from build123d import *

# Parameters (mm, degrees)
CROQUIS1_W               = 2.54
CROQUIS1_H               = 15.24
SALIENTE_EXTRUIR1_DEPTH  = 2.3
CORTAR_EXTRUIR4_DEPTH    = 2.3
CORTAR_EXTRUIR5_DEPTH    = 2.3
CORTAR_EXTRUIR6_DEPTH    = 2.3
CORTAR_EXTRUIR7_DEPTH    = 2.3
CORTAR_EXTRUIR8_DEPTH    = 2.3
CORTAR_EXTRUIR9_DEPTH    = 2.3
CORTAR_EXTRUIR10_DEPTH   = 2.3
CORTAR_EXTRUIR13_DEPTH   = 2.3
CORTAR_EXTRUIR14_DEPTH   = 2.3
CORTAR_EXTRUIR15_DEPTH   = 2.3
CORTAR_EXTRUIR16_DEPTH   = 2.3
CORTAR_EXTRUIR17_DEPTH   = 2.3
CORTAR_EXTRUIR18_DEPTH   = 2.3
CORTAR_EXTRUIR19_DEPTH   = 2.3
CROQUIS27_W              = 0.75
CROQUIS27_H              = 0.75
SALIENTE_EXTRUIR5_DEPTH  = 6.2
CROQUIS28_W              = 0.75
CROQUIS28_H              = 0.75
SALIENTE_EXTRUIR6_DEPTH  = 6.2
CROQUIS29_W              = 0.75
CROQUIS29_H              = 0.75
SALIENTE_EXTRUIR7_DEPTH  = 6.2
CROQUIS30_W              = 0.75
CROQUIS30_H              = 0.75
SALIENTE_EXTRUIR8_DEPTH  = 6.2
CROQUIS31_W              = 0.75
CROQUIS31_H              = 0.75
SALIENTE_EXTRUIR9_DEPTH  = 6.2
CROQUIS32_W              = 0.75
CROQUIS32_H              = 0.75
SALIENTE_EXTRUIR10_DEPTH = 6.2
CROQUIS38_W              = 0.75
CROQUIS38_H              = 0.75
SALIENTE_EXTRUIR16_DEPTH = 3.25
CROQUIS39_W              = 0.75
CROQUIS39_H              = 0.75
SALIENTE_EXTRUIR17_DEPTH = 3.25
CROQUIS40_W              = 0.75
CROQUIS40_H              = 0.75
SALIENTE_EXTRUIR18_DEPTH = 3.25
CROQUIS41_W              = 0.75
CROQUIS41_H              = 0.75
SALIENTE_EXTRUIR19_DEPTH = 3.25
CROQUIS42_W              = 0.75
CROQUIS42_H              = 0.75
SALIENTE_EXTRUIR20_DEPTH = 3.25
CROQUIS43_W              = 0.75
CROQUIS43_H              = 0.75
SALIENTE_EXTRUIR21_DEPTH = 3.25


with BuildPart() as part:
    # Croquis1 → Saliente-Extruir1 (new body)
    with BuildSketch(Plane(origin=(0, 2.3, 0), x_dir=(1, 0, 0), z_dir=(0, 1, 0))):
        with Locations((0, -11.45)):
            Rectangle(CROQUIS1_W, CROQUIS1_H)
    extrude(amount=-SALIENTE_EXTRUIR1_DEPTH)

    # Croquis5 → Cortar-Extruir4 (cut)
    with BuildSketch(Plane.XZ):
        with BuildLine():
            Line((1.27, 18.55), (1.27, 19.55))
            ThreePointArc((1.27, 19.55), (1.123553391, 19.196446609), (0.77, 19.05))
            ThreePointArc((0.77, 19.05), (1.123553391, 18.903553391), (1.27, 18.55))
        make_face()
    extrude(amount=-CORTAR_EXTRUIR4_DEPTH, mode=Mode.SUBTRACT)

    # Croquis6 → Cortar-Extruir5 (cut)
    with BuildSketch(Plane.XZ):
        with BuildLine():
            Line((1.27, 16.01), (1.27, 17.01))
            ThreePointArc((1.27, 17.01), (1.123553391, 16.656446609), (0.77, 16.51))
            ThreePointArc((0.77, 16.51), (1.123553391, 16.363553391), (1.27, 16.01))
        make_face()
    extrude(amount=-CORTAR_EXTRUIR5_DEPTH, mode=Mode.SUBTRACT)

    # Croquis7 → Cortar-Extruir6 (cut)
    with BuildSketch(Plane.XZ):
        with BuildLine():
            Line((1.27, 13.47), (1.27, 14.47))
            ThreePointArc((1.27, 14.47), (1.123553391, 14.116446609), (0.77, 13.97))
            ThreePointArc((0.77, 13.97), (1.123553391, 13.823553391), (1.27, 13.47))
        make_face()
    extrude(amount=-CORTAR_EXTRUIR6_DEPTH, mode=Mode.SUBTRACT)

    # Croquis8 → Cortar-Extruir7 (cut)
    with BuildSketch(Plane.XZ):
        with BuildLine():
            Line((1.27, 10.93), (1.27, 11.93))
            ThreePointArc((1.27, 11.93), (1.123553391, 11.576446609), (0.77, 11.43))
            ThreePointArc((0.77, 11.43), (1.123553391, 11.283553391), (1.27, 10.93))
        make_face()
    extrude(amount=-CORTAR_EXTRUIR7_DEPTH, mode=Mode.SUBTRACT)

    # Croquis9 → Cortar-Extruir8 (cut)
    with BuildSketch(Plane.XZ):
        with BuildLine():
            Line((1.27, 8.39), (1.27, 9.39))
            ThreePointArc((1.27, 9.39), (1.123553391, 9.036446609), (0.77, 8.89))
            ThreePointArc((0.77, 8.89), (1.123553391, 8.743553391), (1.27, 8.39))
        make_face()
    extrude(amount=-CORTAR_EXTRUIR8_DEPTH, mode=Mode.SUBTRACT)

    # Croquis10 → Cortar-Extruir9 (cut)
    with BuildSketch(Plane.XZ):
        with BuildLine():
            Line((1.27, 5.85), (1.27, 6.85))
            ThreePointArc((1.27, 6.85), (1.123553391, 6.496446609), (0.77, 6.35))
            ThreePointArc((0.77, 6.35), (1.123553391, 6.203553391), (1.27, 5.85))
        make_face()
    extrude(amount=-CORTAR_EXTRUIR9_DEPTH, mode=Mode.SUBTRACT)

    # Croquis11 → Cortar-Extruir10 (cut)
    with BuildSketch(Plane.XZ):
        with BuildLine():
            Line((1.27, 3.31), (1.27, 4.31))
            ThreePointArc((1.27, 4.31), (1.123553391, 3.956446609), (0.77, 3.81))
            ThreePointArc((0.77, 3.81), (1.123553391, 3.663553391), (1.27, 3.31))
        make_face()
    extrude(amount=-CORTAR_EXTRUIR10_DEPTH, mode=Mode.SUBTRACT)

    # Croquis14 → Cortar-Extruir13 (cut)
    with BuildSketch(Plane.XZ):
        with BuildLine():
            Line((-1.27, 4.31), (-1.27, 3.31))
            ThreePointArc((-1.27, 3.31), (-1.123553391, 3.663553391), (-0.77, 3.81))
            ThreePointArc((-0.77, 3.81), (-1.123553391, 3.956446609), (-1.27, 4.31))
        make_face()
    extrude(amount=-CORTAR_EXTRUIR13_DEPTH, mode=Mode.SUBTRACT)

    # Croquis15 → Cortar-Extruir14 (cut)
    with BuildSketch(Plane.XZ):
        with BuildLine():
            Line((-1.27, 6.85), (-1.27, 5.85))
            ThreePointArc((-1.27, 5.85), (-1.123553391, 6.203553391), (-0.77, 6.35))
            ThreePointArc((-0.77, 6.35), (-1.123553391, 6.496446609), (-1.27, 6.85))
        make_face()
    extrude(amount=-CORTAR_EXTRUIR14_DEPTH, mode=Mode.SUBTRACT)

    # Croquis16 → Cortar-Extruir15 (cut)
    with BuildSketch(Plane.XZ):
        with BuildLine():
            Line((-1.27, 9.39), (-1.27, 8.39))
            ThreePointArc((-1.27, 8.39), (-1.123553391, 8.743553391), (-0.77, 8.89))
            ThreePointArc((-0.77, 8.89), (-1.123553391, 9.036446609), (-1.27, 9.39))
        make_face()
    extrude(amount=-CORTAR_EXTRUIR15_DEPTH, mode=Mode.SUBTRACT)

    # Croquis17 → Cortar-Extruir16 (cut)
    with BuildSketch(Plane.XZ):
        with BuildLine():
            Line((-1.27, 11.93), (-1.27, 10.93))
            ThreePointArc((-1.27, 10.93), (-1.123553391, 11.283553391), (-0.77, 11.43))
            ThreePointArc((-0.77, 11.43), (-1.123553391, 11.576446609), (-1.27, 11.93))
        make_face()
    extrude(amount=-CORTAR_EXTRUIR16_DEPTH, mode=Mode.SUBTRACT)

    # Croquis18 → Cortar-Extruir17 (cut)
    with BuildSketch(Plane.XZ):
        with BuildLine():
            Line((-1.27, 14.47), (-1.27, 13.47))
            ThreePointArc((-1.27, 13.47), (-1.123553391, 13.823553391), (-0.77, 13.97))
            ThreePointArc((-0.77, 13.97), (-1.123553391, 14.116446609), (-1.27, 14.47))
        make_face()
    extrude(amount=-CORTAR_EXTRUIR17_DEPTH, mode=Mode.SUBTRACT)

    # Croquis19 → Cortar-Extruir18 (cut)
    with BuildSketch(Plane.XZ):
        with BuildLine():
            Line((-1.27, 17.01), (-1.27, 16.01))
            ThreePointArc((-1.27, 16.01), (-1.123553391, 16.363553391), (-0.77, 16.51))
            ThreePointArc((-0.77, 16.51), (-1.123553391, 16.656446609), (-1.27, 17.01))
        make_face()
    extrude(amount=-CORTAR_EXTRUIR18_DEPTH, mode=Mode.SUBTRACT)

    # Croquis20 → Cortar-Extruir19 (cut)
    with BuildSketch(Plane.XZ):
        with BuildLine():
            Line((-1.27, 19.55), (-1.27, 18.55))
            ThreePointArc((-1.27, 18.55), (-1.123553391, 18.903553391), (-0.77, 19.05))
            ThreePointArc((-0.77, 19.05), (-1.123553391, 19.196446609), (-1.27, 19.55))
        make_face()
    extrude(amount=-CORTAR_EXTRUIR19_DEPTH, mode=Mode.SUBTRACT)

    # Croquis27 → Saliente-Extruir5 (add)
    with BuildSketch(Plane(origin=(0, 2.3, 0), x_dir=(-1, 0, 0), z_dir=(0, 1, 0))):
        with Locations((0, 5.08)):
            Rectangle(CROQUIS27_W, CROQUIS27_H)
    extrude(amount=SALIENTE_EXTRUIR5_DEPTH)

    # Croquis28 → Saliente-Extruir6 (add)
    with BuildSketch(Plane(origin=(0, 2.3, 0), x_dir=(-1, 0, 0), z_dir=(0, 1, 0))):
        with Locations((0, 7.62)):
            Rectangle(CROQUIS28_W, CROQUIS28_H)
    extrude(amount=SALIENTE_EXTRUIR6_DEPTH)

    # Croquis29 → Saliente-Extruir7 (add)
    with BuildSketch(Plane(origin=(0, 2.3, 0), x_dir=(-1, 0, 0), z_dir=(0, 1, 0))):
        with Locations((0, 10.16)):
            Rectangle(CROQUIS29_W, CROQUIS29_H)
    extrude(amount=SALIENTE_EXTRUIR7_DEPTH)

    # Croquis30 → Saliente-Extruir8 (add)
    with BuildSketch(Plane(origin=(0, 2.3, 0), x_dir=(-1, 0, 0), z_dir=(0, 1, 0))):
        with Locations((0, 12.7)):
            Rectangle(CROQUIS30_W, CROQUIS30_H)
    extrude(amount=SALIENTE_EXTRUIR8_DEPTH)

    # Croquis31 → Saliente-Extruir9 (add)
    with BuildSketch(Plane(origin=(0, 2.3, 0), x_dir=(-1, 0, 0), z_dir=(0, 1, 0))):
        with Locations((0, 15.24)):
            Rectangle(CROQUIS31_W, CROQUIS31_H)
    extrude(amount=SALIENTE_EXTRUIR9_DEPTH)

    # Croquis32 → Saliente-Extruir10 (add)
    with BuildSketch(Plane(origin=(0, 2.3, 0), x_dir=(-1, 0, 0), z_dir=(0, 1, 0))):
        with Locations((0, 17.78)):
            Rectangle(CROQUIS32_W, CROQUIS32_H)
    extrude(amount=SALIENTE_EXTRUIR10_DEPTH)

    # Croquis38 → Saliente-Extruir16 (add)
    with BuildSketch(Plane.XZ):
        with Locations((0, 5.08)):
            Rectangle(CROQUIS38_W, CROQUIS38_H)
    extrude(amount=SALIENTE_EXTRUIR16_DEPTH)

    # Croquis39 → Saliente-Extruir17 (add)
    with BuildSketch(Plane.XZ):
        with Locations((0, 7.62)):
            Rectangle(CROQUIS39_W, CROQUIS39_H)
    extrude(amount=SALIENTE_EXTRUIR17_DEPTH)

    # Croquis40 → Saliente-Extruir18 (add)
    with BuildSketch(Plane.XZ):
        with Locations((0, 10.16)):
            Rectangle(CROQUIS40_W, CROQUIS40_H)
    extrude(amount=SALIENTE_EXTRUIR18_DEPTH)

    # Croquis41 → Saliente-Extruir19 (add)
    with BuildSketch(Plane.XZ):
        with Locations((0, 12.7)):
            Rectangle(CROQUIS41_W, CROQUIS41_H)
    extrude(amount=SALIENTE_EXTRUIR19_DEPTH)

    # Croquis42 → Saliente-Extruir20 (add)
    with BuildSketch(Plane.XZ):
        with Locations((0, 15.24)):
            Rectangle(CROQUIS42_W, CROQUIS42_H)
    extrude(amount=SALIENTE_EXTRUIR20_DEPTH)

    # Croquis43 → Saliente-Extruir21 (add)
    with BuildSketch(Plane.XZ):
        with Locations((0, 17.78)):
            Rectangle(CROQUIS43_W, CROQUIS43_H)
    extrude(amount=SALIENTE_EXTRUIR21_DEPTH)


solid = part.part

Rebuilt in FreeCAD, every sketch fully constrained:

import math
import FreeCAD as App
import Part
import Sketcher


def add_polygon(sketch, points):
    """Adds a closed chain of lines whose ends are joined by coincident constraints."""
    first, n = sketch.GeometryCount, len(points)
    for a, b in zip(points, points[1:] + points[:1]):
        sketch.addGeometry(Part.LineSegment(App.Vector(*a, 0), App.Vector(*b, 0)), False)
    for i in range(n):
        sketch.addConstraint(Sketcher.Constraint("Coincident", first + i, 2, first + (i + 1) % n, 1))

doc = App.newDocument("Part")
body = doc.addObject("PartDesign::Body", "Body")

sketch1 = body.newObject("Sketcher::SketchObject", "Sketch")
sketch1.AttachmentSupport = (doc.getObject("XZ_Plane"), [""])
sketch1.MapMode = "FlatFace"
sketch1.AttachmentOffset = App.Placement(App.Vector(0, 0, -2.3), App.Rotation())
add_polygon(sketch1, [(-1.27, 3.83), (-1.27, 19.07), (1.27, 19.07), (1.27, 3.83)])
sketch1.addConstraint(Sketcher.Constraint("Vertical", 0))
sketch1.addConstraint(Sketcher.Constraint("Horizontal", 1))
sketch1.addConstraint(Sketcher.Constraint("Vertical", 2))
sketch1.addConstraint(Sketcher.Constraint("Horizontal", 3))
sketch1.addConstraint(Sketcher.Constraint("DistanceX", 1, 1, 1, 2, 2.54))
sketch1.addConstraint(Sketcher.Constraint("DistanceY", 0, 1, 0, 2, 15.24))
sketch1.addConstraint(Sketcher.Constraint("DistanceX", 0, 2, -1, 1, 1.27))
sketch1.addConstraint(Sketcher.Constraint("DistanceY", -1, 1, 0, 2, 19.07))
pad1 = body.newObject("PartDesign::Pad", "Pad")
pad1.Profile = sketch1
pad1.Length = 2.3

sketch2 = body.newObject("Sketcher::SketchObject", "Sketch001")
sketch2.AttachmentSupport = (doc.getObject("XZ_Plane"), [""])
sketch2.MapMode = "FlatFace"
sketch2.addGeometry(Part.LineSegment(App.Vector(1.27, 18.55, 0), App.Vector(1.27, 19.55, 0)), False)
sketch2.addGeometry(Part.ArcOfCircle(Part.Circle(App.Vector(0.77, 19.55, 0), App.Vector(0, 0, 1), 0.5), math.radians(-90), math.radians(0)), False)
sketch2.addGeometry(Part.ArcOfCircle(Part.Circle(App.Vector(0.77, 18.55, 0), App.Vector(0, 0, 1), 0.5), math.radians(0), math.radians(90)), False)
sketch2.addConstraint(Sketcher.Constraint("Tangent", 0, 2, 1, 2))
sketch2.addConstraint(Sketcher.Constraint("Tangent", 1, 1, 2, 2))
sketch2.addConstraint(Sketcher.Constraint("Tangent", 2, 1, 0, 1))
sketch2.addConstraint(Sketcher.Constraint("Vertical", 0))
sketch2.addConstraint(Sketcher.Constraint("Equal", 1, 2))
sketch2.addConstraint(Sketcher.Constraint("Radius", 1, 0.5))
sketch2.addConstraint(Sketcher.Constraint("DistanceX", -1, 1, 1, 3, 0.77))
sketch2.addConstraint(Sketcher.Constraint("DistanceY", -1, 1, 1, 3, 19.55))
pocket1 = body.newObject("PartDesign::Pocket", "Pocket")
pocket1.Profile = sketch2
pocket1.Length = 2.3

sketch3 = body.newObject("Sketcher::SketchObject", "Sketch002")
sketch3.AttachmentSupport = (doc.getObject("XZ_Plane"), [""])
sketch3.MapMode = "FlatFace"
sketch3.addGeometry(Part.LineSegment(App.Vector(1.27, 16.01, 0), App.Vector(1.27, 17.01, 0)), False)
sketch3.addGeometry(Part.ArcOfCircle(Part.Circle(App.Vector(0.77, 17.01, 0), App.Vector(0, 0, 1), 0.5), math.radians(-90), math.radians(0)), False)
sketch3.addGeometry(Part.ArcOfCircle(Part.Circle(App.Vector(0.77, 16.01, 0), App.Vector(0, 0, 1), 0.5), math.radians(0), math.radians(90)), False)
sketch3.addConstraint(Sketcher.Constraint("Tangent", 0, 2, 1, 2))
sketch3.addConstraint(Sketcher.Constraint("Tangent", 1, 1, 2, 2))
sketch3.addConstraint(Sketcher.Constraint("Tangent", 2, 1, 0, 1))
sketch3.addConstraint(Sketcher.Constraint("Vertical", 0))
sketch3.addConstraint(Sketcher.Constraint("Equal", 1, 2))
sketch3.addConstraint(Sketcher.Constraint("Radius", 1, 0.5))
sketch3.addConstraint(Sketcher.Constraint("DistanceX", -1, 1, 1, 3, 0.77))
sketch3.addConstraint(Sketcher.Constraint("DistanceY", -1, 1, 1, 3, 17.01))
pocket2 = body.newObject("PartDesign::Pocket", "Pocket001")
pocket2.Profile = sketch3
pocket2.Length = 2.3

sketch4 = body.newObject("Sketcher::SketchObject", "Sketch003")
sketch4.AttachmentSupport = (doc.getObject("XZ_Plane"), [""])
sketch4.MapMode = "FlatFace"
sketch4.addGeometry(Part.LineSegment(App.Vector(1.27, 13.47, 0), App.Vector(1.27, 14.47, 0)), False)
sketch4.addGeometry(Part.ArcOfCircle(Part.Circle(App.Vector(0.77, 14.47, 0), App.Vector(0, 0, 1), 0.5), math.radians(-90), math.radians(0)), False)
sketch4.addGeometry(Part.ArcOfCircle(Part.Circle(App.Vector(0.77, 13.47, 0), App.Vector(0, 0, 1), 0.5), math.radians(0), math.radians(90)), False)
sketch4.addConstraint(Sketcher.Constraint("Tangent", 0, 2, 1, 2))
sketch4.addConstraint(Sketcher.Constraint("Tangent", 1, 1, 2, 2))
sketch4.addConstraint(Sketcher.Constraint("Tangent", 2, 1, 0, 1))
sketch4.addConstraint(Sketcher.Constraint("Vertical", 0))
sketch4.addConstraint(Sketcher.Constraint("Equal", 1, 2))
sketch4.addConstraint(Sketcher.Constraint("Radius", 1, 0.5))
sketch4.addConstraint(Sketcher.Constraint("DistanceX", -1, 1, 1, 3, 0.77))
sketch4.addConstraint(Sketcher.Constraint("DistanceY", -1, 1, 1, 3, 14.47))
pocket3 = body.newObject("PartDesign::Pocket", "Pocket002")
pocket3.Profile = sketch4
pocket3.Length = 2.3

sketch5 = body.newObject("Sketcher::SketchObject", "Sketch004")
sketch5.AttachmentSupport = (doc.getObject("XZ_Plane"), [""])
sketch5.MapMode = "FlatFace"
sketch5.addGeometry(Part.LineSegment(App.Vector(1.27, 10.93, 0), App.Vector(1.27, 11.93, 0)), False)
sketch5.addGeometry(Part.ArcOfCircle(Part.Circle(App.Vector(0.77, 11.93, 0), App.Vector(0, 0, 1), 0.5), math.radians(-90), math.radians(0)), False)
sketch5.addGeometry(Part.ArcOfCircle(Part.Circle(App.Vector(0.77, 10.93, 0), App.Vector(0, 0, 1), 0.5), math.radians(0), math.radians(90)), False)
sketch5.addConstraint(Sketcher.Constraint("Tangent", 0, 2, 1, 2))
sketch5.addConstraint(Sketcher.Constraint("Tangent", 1, 1, 2, 2))
sketch5.addConstraint(Sketcher.Constraint("Tangent", 2, 1, 0, 1))
sketch5.addConstraint(Sketcher.Constraint("Vertical", 0))
sketch5.addConstraint(Sketcher.Constraint("Equal", 1, 2))
sketch5.addConstraint(Sketcher.Constraint("Radius", 1, 0.5))
sketch5.addConstraint(Sketcher.Constraint("DistanceX", -1, 1, 1, 3, 0.77))
sketch5.addConstraint(Sketcher.Constraint("DistanceY", -1, 1, 1, 3, 11.93))
pocket4 = body.newObject("PartDesign::Pocket", "Pocket003")
pocket4.Profile = sketch5
pocket4.Length = 2.3

sketch6 = body.newObject("Sketcher::SketchObject", "Sketch005")
sketch6.AttachmentSupport = (doc.getObject("XZ_Plane"), [""])
sketch6.MapMode = "FlatFace"
sketch6.addGeometry(Part.LineSegment(App.Vector(1.27, 8.39, 0), App.Vector(1.27, 9.39, 0)), False)
sketch6.addGeometry(Part.ArcOfCircle(Part.Circle(App.Vector(0.77, 9.39, 0), App.Vector(0, 0, 1), 0.5), math.radians(-90), math.radians(0)), False)
sketch6.addGeometry(Part.ArcOfCircle(Part.Circle(App.Vector(0.77, 8.39, 0), App.Vector(0, 0, 1), 0.5), math.radians(0), math.radians(90)), False)
sketch6.addConstraint(Sketcher.Constraint("Tangent", 0, 2, 1, 2))
sketch6.addConstraint(Sketcher.Constraint("Tangent", 1, 1, 2, 2))
sketch6.addConstraint(Sketcher.Constraint("Tangent", 2, 1, 0, 1))
sketch6.addConstraint(Sketcher.Constraint("Vertical", 0))
sketch6.addConstraint(Sketcher.Constraint("Equal", 1, 2))
sketch6.addConstraint(Sketcher.Constraint("Radius", 1, 0.5))
sketch6.addConstraint(Sketcher.Constraint("DistanceX", -1, 1, 1, 3, 0.77))
sketch6.addConstraint(Sketcher.Constraint("DistanceY", -1, 1, 1, 3, 9.39))
pocket5 = body.newObject("PartDesign::Pocket", "Pocket004")
pocket5.Profile = sketch6
pocket5.Length = 2.3

sketch7 = body.newObject("Sketcher::SketchObject", "Sketch006")
sketch7.AttachmentSupport = (doc.getObject("XZ_Plane"), [""])
sketch7.MapMode = "FlatFace"
sketch7.addGeometry(Part.LineSegment(App.Vector(1.27, 5.85, 0), App.Vector(1.27, 6.85, 0)), False)
sketch7.addGeometry(Part.ArcOfCircle(Part.Circle(App.Vector(0.77, 6.85, 0), App.Vector(0, 0, 1), 0.5), math.radians(-90), math.radians(0)), False)
sketch7.addGeometry(Part.ArcOfCircle(Part.Circle(App.Vector(0.77, 5.85, 0), App.Vector(0, 0, 1), 0.5), math.radians(0), math.radians(90)), False)
sketch7.addConstraint(Sketcher.Constraint("Tangent", 0, 2, 1, 2))
sketch7.addConstraint(Sketcher.Constraint("Tangent", 1, 1, 2, 2))
sketch7.addConstraint(Sketcher.Constraint("Tangent", 2, 1, 0, 1))
sketch7.addConstraint(Sketcher.Constraint("Vertical", 0))
sketch7.addConstraint(Sketcher.Constraint("Equal", 1, 2))
sketch7.addConstraint(Sketcher.Constraint("Radius", 1, 0.5))
sketch7.addConstraint(Sketcher.Constraint("DistanceX", -1, 1, 1, 3, 0.77))
sketch7.addConstraint(Sketcher.Constraint("DistanceY", -1, 1, 1, 3, 6.85))
pocket6 = body.newObject("PartDesign::Pocket", "Pocket005")
pocket6.Profile = sketch7
pocket6.Length = 2.3

sketch8 = body.newObject("Sketcher::SketchObject", "Sketch007")
sketch8.AttachmentSupport = (doc.getObject("XZ_Plane"), [""])
sketch8.MapMode = "FlatFace"
sketch8.addGeometry(Part.LineSegment(App.Vector(1.27, 3.31, 0), App.Vector(1.27, 4.31, 0)), False)
sketch8.addGeometry(Part.ArcOfCircle(Part.Circle(App.Vector(0.77, 4.31, 0), App.Vector(0, 0, 1), 0.5), math.radians(-90), math.radians(0)), False)
sketch8.addGeometry(Part.ArcOfCircle(Part.Circle(App.Vector(0.77, 3.31, 0), App.Vector(0, 0, 1), 0.5), math.radians(0), math.radians(90)), False)
sketch8.addConstraint(Sketcher.Constraint("Tangent", 0, 2, 1, 2))
sketch8.addConstraint(Sketcher.Constraint("Tangent", 1, 1, 2, 2))
sketch8.addConstraint(Sketcher.Constraint("Tangent", 2, 1, 0, 1))
sketch8.addConstraint(Sketcher.Constraint("Vertical", 0))
sketch8.addConstraint(Sketcher.Constraint("Equal", 1, 2))
sketch8.addConstraint(Sketcher.Constraint("Radius", 1, 0.5))
sketch8.addConstraint(Sketcher.Constraint("DistanceX", -1, 1, 1, 3, 0.77))
sketch8.addConstraint(Sketcher.Constraint("DistanceY", -1, 1, 1, 3, 4.31))
pocket7 = body.newObject("PartDesign::Pocket", "Pocket006")
pocket7.Profile = sketch8
pocket7.Length = 2.3

sketch9 = body.newObject("Sketcher::SketchObject", "Sketch008")
sketch9.AttachmentSupport = (doc.getObject("XZ_Plane"), [""])
sketch9.MapMode = "FlatFace"
sketch9.addGeometry(Part.LineSegment(App.Vector(-1.27, 4.31, 0), App.Vector(-1.27, 3.31, 0)), False)
sketch9.addGeometry(Part.ArcOfCircle(Part.Circle(App.Vector(-0.77, 3.31, 0), App.Vector(0, 0, 1), 0.5), math.radians(90), math.radians(180)), False)
sketch9.addGeometry(Part.ArcOfCircle(Part.Circle(App.Vector(-0.77, 4.31, 0), App.Vector(0, 0, 1), 0.5), math.radians(180), math.radians(270)), False)
sketch9.addConstraint(Sketcher.Constraint("Tangent", 0, 2, 1, 2))
sketch9.addConstraint(Sketcher.Constraint("Tangent", 1, 1, 2, 2))
sketch9.addConstraint(Sketcher.Constraint("Tangent", 2, 1, 0, 1))
sketch9.addConstraint(Sketcher.Constraint("Vertical", 0))
sketch9.addConstraint(Sketcher.Constraint("Equal", 1, 2))
sketch9.addConstraint(Sketcher.Constraint("Radius", 1, 0.5))
sketch9.addConstraint(Sketcher.Constraint("DistanceX", 1, 3, -1, 1, 0.77))
sketch9.addConstraint(Sketcher.Constraint("DistanceY", -1, 1, 1, 3, 3.31))
pocket8 = body.newObject("PartDesign::Pocket", "Pocket007")
pocket8.Profile = sketch9
pocket8.Length = 2.3

sketch10 = body.newObject("Sketcher::SketchObject", "Sketch009")
sketch10.AttachmentSupport = (doc.getObject("XZ_Plane"), [""])
sketch10.MapMode = "FlatFace"
sketch10.addGeometry(Part.LineSegment(App.Vector(-1.27, 6.85, 0), App.Vector(-1.27, 5.85, 0)), False)
sketch10.addGeometry(Part.ArcOfCircle(Part.Circle(App.Vector(-0.77, 5.85, 0), App.Vector(0, 0, 1), 0.5), math.radians(90), math.radians(180)), False)
sketch10.addGeometry(Part.ArcOfCircle(Part.Circle(App.Vector(-0.77, 6.85, 0), App.Vector(0, 0, 1), 0.5), math.radians(180), math.radians(270)), False)
sketch10.addConstraint(Sketcher.Constraint("Tangent", 0, 2, 1, 2))
sketch10.addConstraint(Sketcher.Constraint("Tangent", 1, 1, 2, 2))
sketch10.addConstraint(Sketcher.Constraint("Tangent", 2, 1, 0, 1))
sketch10.addConstraint(Sketcher.Constraint("Vertical", 0))
sketch10.addConstraint(Sketcher.Constraint("Equal", 1, 2))
sketch10.addConstraint(Sketcher.Constraint("Radius", 1, 0.5))
sketch10.addConstraint(Sketcher.Constraint("DistanceX", 1, 3, -1, 1, 0.77))
sketch10.addConstraint(Sketcher.Constraint("DistanceY", -1, 1, 1, 3, 5.85))
pocket9 = body.newObject("PartDesign::Pocket", "Pocket008")
pocket9.Profile = sketch10
pocket9.Length = 2.3

sketch11 = body.newObject("Sketcher::SketchObject", "Sketch010")
sketch11.AttachmentSupport = (doc.getObject("XZ_Plane"), [""])
sketch11.MapMode = "FlatFace"
sketch11.addGeometry(Part.LineSegment(App.Vector(-1.27, 9.39, 0), App.Vector(-1.27, 8.39, 0)), False)
sketch11.addGeometry(Part.ArcOfCircle(Part.Circle(App.Vector(-0.77, 8.39, 0), App.Vector(0, 0, 1), 0.5), math.radians(90), math.radians(180)), False)
sketch11.addGeometry(Part.ArcOfCircle(Part.Circle(App.Vector(-0.77, 9.39, 0), App.Vector(0, 0, 1), 0.5), math.radians(180), math.radians(270)), False)
sketch11.addConstraint(Sketcher.Constraint("Tangent", 0, 2, 1, 2))
sketch11.addConstraint(Sketcher.Constraint("Tangent", 1, 1, 2, 2))
sketch11.addConstraint(Sketcher.Constraint("Tangent", 2, 1, 0, 1))
sketch11.addConstraint(Sketcher.Constraint("Vertical", 0))
sketch11.addConstraint(Sketcher.Constraint("Equal", 1, 2))
sketch11.addConstraint(Sketcher.Constraint("Radius", 1, 0.5))
sketch11.addConstraint(Sketcher.Constraint("DistanceX", 1, 3, -1, 1, 0.77))
sketch11.addConstraint(Sketcher.Constraint("DistanceY", -1, 1, 1, 3, 8.39))
pocket10 = body.newObject("PartDesign::Pocket", "Pocket009")
pocket10.Profile = sketch11
pocket10.Length = 2.3

sketch12 = body.newObject("Sketcher::SketchObject", "Sketch011")
sketch12.AttachmentSupport = (doc.getObject("XZ_Plane"), [""])
sketch12.MapMode = "FlatFace"
sketch12.addGeometry(Part.LineSegment(App.Vector(-1.27, 11.93, 0), App.Vector(-1.27, 10.93, 0)), False)
sketch12.addGeometry(Part.ArcOfCircle(Part.Circle(App.Vector(-0.77, 10.93, 0), App.Vector(0, 0, 1), 0.5), math.radians(90), math.radians(180)), False)
sketch12.addGeometry(Part.ArcOfCircle(Part.Circle(App.Vector(-0.77, 11.93, 0), App.Vector(0, 0, 1), 0.5), math.radians(180), math.radians(270)), False)
sketch12.addConstraint(Sketcher.Constraint("Tangent", 0, 2, 1, 2))
sketch12.addConstraint(Sketcher.Constraint("Tangent", 1, 1, 2, 2))
sketch12.addConstraint(Sketcher.Constraint("Tangent", 2, 1, 0, 1))
sketch12.addConstraint(Sketcher.Constraint("Vertical", 0))
sketch12.addConstraint(Sketcher.Constraint("Equal", 1, 2))
sketch12.addConstraint(Sketcher.Constraint("Radius", 1, 0.5))
sketch12.addConstraint(Sketcher.Constraint("DistanceX", 1, 3, -1, 1, 0.77))
sketch12.addConstraint(Sketcher.Constraint("DistanceY", -1, 1, 1, 3, 10.93))
pocket11 = body.newObject("PartDesign::Pocket", "Pocket010")
pocket11.Profile = sketch12
pocket11.Length = 2.3

sketch13 = body.newObject("Sketcher::SketchObject", "Sketch012")
sketch13.AttachmentSupport = (doc.getObject("XZ_Plane"), [""])
sketch13.MapMode = "FlatFace"
sketch13.addGeometry(Part.LineSegment(App.Vector(-1.27, 14.47, 0), App.Vector(-1.27, 13.47, 0)), False)
sketch13.addGeometry(Part.ArcOfCircle(Part.Circle(App.Vector(-0.77, 13.47, 0), App.Vector(0, 0, 1), 0.5), math.radians(90), math.radians(180)), False)
sketch13.addGeometry(Part.ArcOfCircle(Part.Circle(App.Vector(-0.77, 14.47, 0), App.Vector(0, 0, 1), 0.5), math.radians(180), math.radians(270)), False)
sketch13.addConstraint(Sketcher.Constraint("Tangent", 0, 2, 1, 2))
sketch13.addConstraint(Sketcher.Constraint("Tangent", 1, 1, 2, 2))
sketch13.addConstraint(Sketcher.Constraint("Tangent", 2, 1, 0, 1))
sketch13.addConstraint(Sketcher.Constraint("Vertical", 0))
sketch13.addConstraint(Sketcher.Constraint("Equal", 1, 2))
sketch13.addConstraint(Sketcher.Constraint("Radius", 1, 0.5))
sketch13.addConstraint(Sketcher.Constraint("DistanceX", 1, 3, -1, 1, 0.77))
sketch13.addConstraint(Sketcher.Constraint("DistanceY", -1, 1, 1, 3, 13.47))
pocket12 = body.newObject("PartDesign::Pocket", "Pocket011")
pocket12.Profile = sketch13
pocket12.Length = 2.3

sketch14 = body.newObject("Sketcher::SketchObject", "Sketch013")
sketch14.AttachmentSupport = (doc.getObject("XZ_Plane"), [""])
sketch14.MapMode = "FlatFace"
sketch14.addGeometry(Part.LineSegment(App.Vector(-1.27, 17.01, 0), App.Vector(-1.27, 16.01, 0)), False)
sketch14.addGeometry(Part.ArcOfCircle(Part.Circle(App.Vector(-0.77, 16.01, 0), App.Vector(0, 0, 1), 0.5), math.radians(90), math.radians(180)), False)
sketch14.addGeometry(Part.ArcOfCircle(Part.Circle(App.Vector(-0.77, 17.01, 0), App.Vector(0, 0, 1), 0.5), math.radians(180), math.radians(270)), False)
sketch14.addConstraint(Sketcher.Constraint("Tangent", 0, 2, 1, 2))
sketch14.addConstraint(Sketcher.Constraint("Tangent", 1, 1, 2, 2))
sketch14.addConstraint(Sketcher.Constraint("Tangent", 2, 1, 0, 1))
sketch14.addConstraint(Sketcher.Constraint("Vertical", 0))
sketch14.addConstraint(Sketcher.Constraint("Equal", 1, 2))
sketch14.addConstraint(Sketcher.Constraint("Radius", 1, 0.5))
sketch14.addConstraint(Sketcher.Constraint("DistanceX", 1, 3, -1, 1, 0.77))
sketch14.addConstraint(Sketcher.Constraint("DistanceY", -1, 1, 1, 3, 16.01))
pocket13 = body.newObject("PartDesign::Pocket", "Pocket012")
pocket13.Profile = sketch14
pocket13.Length = 2.3

sketch15 = body.newObject("Sketcher::SketchObject", "Sketch014")
sketch15.AttachmentSupport = (doc.getObject("XZ_Plane"), [""])
sketch15.MapMode = "FlatFace"
sketch15.addGeometry(Part.LineSegment(App.Vector(-1.27, 19.55, 0), App.Vector(-1.27, 18.55, 0)), False)
sketch15.addGeometry(Part.ArcOfCircle(Part.Circle(App.Vector(-0.77, 18.55, 0), App.Vector(0, 0, 1), 0.5), math.radians(90), math.radians(180)), False)
sketch15.addGeometry(Part.ArcOfCircle(Part.Circle(App.Vector(-0.77, 19.55, 0), App.Vector(0, 0, 1), 0.5), math.radians(180), math.radians(270)), False)
sketch15.addConstraint(Sketcher.Constraint("Tangent", 0, 2, 1, 2))
sketch15.addConstraint(Sketcher.Constraint("Tangent", 1, 1, 2, 2))
sketch15.addConstraint(Sketcher.Constraint("Tangent", 2, 1, 0, 1))
sketch15.addConstraint(Sketcher.Constraint("Vertical", 0))
sketch15.addConstraint(Sketcher.Constraint("Equal", 1, 2))
sketch15.addConstraint(Sketcher.Constraint("Radius", 1, 0.5))
sketch15.addConstraint(Sketcher.Constraint("DistanceX", 1, 3, -1, 1, 0.77))
sketch15.addConstraint(Sketcher.Constraint("DistanceY", -1, 1, 1, 3, 18.55))
pocket14 = body.newObject("PartDesign::Pocket", "Pocket013")
pocket14.Profile = sketch15
pocket14.Length = 2.3

sketch16 = body.newObject("Sketcher::SketchObject", "Sketch015")
sketch16.AttachmentSupport = (doc.getObject("XZ_Plane"), [""])
sketch16.MapMode = "FlatFace"
sketch16.AttachmentOffset = App.Placement(App.Vector(0, 0, -2.3), App.Rotation())
add_polygon(sketch16, [(0.375, 5.455), (0.375, 4.705), (-0.375, 4.705), (-0.375, 5.455)])
sketch16.addConstraint(Sketcher.Constraint("Vertical", 0))
sketch16.addConstraint(Sketcher.Constraint("Horizontal", 1))
sketch16.addConstraint(Sketcher.Constraint("Vertical", 2))
sketch16.addConstraint(Sketcher.Constraint("Horizontal", 3))
sketch16.addConstraint(Sketcher.Constraint("Equal", 3, 0))
sketch16.addConstraint(Sketcher.Constraint("DistanceX", 1, 2, 1, 1, 0.75))
sketch16.addConstraint(Sketcher.Constraint("DistanceX", -1, 1, 0, 2, 0.375))
sketch16.addConstraint(Sketcher.Constraint("DistanceY", -1, 1, 0, 2, 4.705))
pad2 = body.newObject("PartDesign::Pad", "Pad001")
pad2.Profile = sketch16
pad2.Length = 6.2
pad2.Reversed = True

sketch17 = body.newObject("Sketcher::SketchObject", "Sketch016")
sketch17.AttachmentSupport = (doc.getObject("XZ_Plane"), [""])
sketch17.MapMode = "FlatFace"
sketch17.AttachmentOffset = App.Placement(App.Vector(0, 0, -2.3), App.Rotation())
add_polygon(sketch17, [(0.375, 7.995), (0.375, 7.245), (-0.375, 7.245), (-0.375, 7.995)])
sketch17.addConstraint(Sketcher.Constraint("Vertical", 0))
sketch17.addConstraint(Sketcher.Constraint("Horizontal", 1))
sketch17.addConstraint(Sketcher.Constraint("Vertical", 2))
sketch17.addConstraint(Sketcher.Constraint("Horizontal", 3))
sketch17.addConstraint(Sketcher.Constraint("Equal", 3, 0))
sketch17.addConstraint(Sketcher.Constraint("DistanceX", 1, 2, 1, 1, 0.75))
sketch17.addConstraint(Sketcher.Constraint("DistanceX", -1, 1, 0, 2, 0.375))
sketch17.addConstraint(Sketcher.Constraint("DistanceY", -1, 1, 0, 2, 7.245))
pad3 = body.newObject("PartDesign::Pad", "Pad002")
pad3.Profile = sketch17
pad3.Length = 6.2
pad3.Reversed = True

sketch18 = body.newObject("Sketcher::SketchObject", "Sketch017")
sketch18.AttachmentSupport = (doc.getObject("XZ_Plane"), [""])
sketch18.MapMode = "FlatFace"
sketch18.AttachmentOffset = App.Placement(App.Vector(0, 0, -2.3), App.Rotation())
add_polygon(sketch18, [(0.375, 10.535), (0.375, 9.785), (-0.375, 9.785), (-0.375, 10.535)])
sketch18.addConstraint(Sketcher.Constraint("Vertical", 0))
sketch18.addConstraint(Sketcher.Constraint("Horizontal", 1))
sketch18.addConstraint(Sketcher.Constraint("Vertical", 2))
sketch18.addConstraint(Sketcher.Constraint("Horizontal", 3))
sketch18.addConstraint(Sketcher.Constraint("Equal", 3, 0))
sketch18.addConstraint(Sketcher.Constraint("DistanceX", 1, 2, 1, 1, 0.75))
sketch18.addConstraint(Sketcher.Constraint("DistanceX", -1, 1, 0, 2, 0.375))
sketch18.addConstraint(Sketcher.Constraint("DistanceY", -1, 1, 0, 2, 9.785))
pad4 = body.newObject("PartDesign::Pad", "Pad003")
pad4.Profile = sketch18
pad4.Length = 6.2
pad4.Reversed = True

sketch19 = body.newObject("Sketcher::SketchObject", "Sketch018")
sketch19.AttachmentSupport = (doc.getObject("XZ_Plane"), [""])
sketch19.MapMode = "FlatFace"
sketch19.AttachmentOffset = App.Placement(App.Vector(0, 0, -2.3), App.Rotation())
add_polygon(sketch19, [(0.375, 13.075), (0.375, 12.325), (-0.375, 12.325), (-0.375, 13.075)])
sketch19.addConstraint(Sketcher.Constraint("Vertical", 0))
sketch19.addConstraint(Sketcher.Constraint("Horizontal", 1))
sketch19.addConstraint(Sketcher.Constraint("Vertical", 2))
sketch19.addConstraint(Sketcher.Constraint("Horizontal", 3))
sketch19.addConstraint(Sketcher.Constraint("Equal", 3, 0))
sketch19.addConstraint(Sketcher.Constraint("DistanceX", 1, 2, 1, 1, 0.75))
sketch19.addConstraint(Sketcher.Constraint("DistanceX", -1, 1, 0, 2, 0.375))
sketch19.addConstraint(Sketcher.Constraint("DistanceY", -1, 1, 0, 2, 12.325))
pad5 = body.newObject("PartDesign::Pad", "Pad004")
pad5.Profile = sketch19
pad5.Length = 6.2
pad5.Reversed = True

sketch20 = body.newObject("Sketcher::SketchObject", "Sketch019")
sketch20.AttachmentSupport = (doc.getObject("XZ_Plane"), [""])
sketch20.MapMode = "FlatFace"
sketch20.AttachmentOffset = App.Placement(App.Vector(0, 0, -2.3), App.Rotation())
add_polygon(sketch20, [(0.375, 15.615), (0.375, 14.865), (-0.375, 14.865), (-0.375, 15.615)])
sketch20.addConstraint(Sketcher.Constraint("Vertical", 0))
sketch20.addConstraint(Sketcher.Constraint("Horizontal", 1))
sketch20.addConstraint(Sketcher.Constraint("Vertical", 2))
sketch20.addConstraint(Sketcher.Constraint("Horizontal", 3))
sketch20.addConstraint(Sketcher.Constraint("Equal", 3, 0))
sketch20.addConstraint(Sketcher.Constraint("DistanceX", 1, 2, 1, 1, 0.75))
sketch20.addConstraint(Sketcher.Constraint("DistanceX", -1, 1, 0, 2, 0.375))
sketch20.addConstraint(Sketcher.Constraint("DistanceY", -1, 1, 0, 2, 14.865))
pad6 = body.newObject("PartDesign::Pad", "Pad005")
pad6.Profile = sketch20
pad6.Length = 6.2
pad6.Reversed = True

sketch21 = body.newObject("Sketcher::SketchObject", "Sketch020")
sketch21.AttachmentSupport = (doc.getObject("XZ_Plane"), [""])
sketch21.MapMode = "FlatFace"
sketch21.AttachmentOffset = App.Placement(App.Vector(0, 0, -2.3), App.Rotation())
add_polygon(sketch21, [(0.375, 18.155), (0.375, 17.405), (-0.375, 17.405), (-0.375, 18.155)])
sketch21.addConstraint(Sketcher.Constraint("Vertical", 0))
sketch21.addConstraint(Sketcher.Constraint("Horizontal", 1))
sketch21.addConstraint(Sketcher.Constraint("Vertical", 2))
sketch21.addConstraint(Sketcher.Constraint("Horizontal", 3))
sketch21.addConstraint(Sketcher.Constraint("Equal", 3, 0))
sketch21.addConstraint(Sketcher.Constraint("DistanceX", 1, 2, 1, 1, 0.75))
sketch21.addConstraint(Sketcher.Constraint("DistanceX", -1, 1, 0, 2, 0.375))
sketch21.addConstraint(Sketcher.Constraint("DistanceY", -1, 1, 0, 2, 17.405))
pad7 = body.newObject("PartDesign::Pad", "Pad006")
pad7.Profile = sketch21
pad7.Length = 6.2
pad7.Reversed = True

sketch22 = body.newObject("Sketcher::SketchObject", "Sketch021")
sketch22.AttachmentSupport = (doc.getObject("XZ_Plane"), [""])
sketch22.MapMode = "FlatFace"
add_polygon(sketch22, [(-0.375, 5.455), (-0.375, 4.705), (0.375, 4.705), (0.375, 5.455)])
sketch22.addConstraint(Sketcher.Constraint("Vertical", 0))
sketch22.addConstraint(Sketcher.Constraint("Horizontal", 1))
sketch22.addConstraint(Sketcher.Constraint("Vertical", 2))
sketch22.addConstraint(Sketcher.Constraint("Horizontal", 3))
sketch22.addConstraint(Sketcher.Constraint("Equal", 3, 0))
sketch22.addConstraint(Sketcher.Constraint("DistanceX", 1, 1, 1, 2, 0.75))
sketch22.addConstraint(Sketcher.Constraint("DistanceX", 0, 2, -1, 1, 0.375))
sketch22.addConstraint(Sketcher.Constraint("DistanceY", -1, 1, 0, 2, 4.705))
pad8 = body.newObject("PartDesign::Pad", "Pad007")
pad8.Profile = sketch22
pad8.Length = 3.25

sketch23 = body.newObject("Sketcher::SketchObject", "Sketch022")
sketch23.AttachmentSupport = (doc.getObject("XZ_Plane"), [""])
sketch23.MapMode = "FlatFace"
add_polygon(sketch23, [(-0.375, 7.995), (-0.375, 7.245), (0.375, 7.245), (0.375, 7.995)])
sketch23.addConstraint(Sketcher.Constraint("Vertical", 0))
sketch23.addConstraint(Sketcher.Constraint("Horizontal", 1))
sketch23.addConstraint(Sketcher.Constraint("Vertical", 2))
sketch23.addConstraint(Sketcher.Constraint("Horizontal", 3))
sketch23.addConstraint(Sketcher.Constraint("Equal", 3, 0))
sketch23.addConstraint(Sketcher.Constraint("DistanceX", 1, 1, 1, 2, 0.75))
sketch23.addConstraint(Sketcher.Constraint("DistanceX", 0, 2, -1, 1, 0.375))
sketch23.addConstraint(Sketcher.Constraint("DistanceY", -1, 1, 0, 2, 7.245))
pad9 = body.newObject("PartDesign::Pad", "Pad008")
pad9.Profile = sketch23
pad9.Length = 3.25

sketch24 = body.newObject("Sketcher::SketchObject", "Sketch023")
sketch24.AttachmentSupport = (doc.getObject("XZ_Plane"), [""])
sketch24.MapMode = "FlatFace"
add_polygon(sketch24, [(-0.375, 10.535), (-0.375, 9.785), (0.375, 9.785), (0.375, 10.535)])
sketch24.addConstraint(Sketcher.Constraint("Vertical", 0))
sketch24.addConstraint(Sketcher.Constraint("Horizontal", 1))
sketch24.addConstraint(Sketcher.Constraint("Vertical", 2))
sketch24.addConstraint(Sketcher.Constraint("Horizontal", 3))
sketch24.addConstraint(Sketcher.Constraint("Equal", 3, 0))
sketch24.addConstraint(Sketcher.Constraint("DistanceX", 1, 1, 1, 2, 0.75))
sketch24.addConstraint(Sketcher.Constraint("DistanceX", 0, 2, -1, 1, 0.375))
sketch24.addConstraint(Sketcher.Constraint("DistanceY", -1, 1, 0, 2, 9.785))
pad10 = body.newObject("PartDesign::Pad", "Pad009")
pad10.Profile = sketch24
pad10.Length = 3.25

sketch25 = body.newObject("Sketcher::SketchObject", "Sketch024")
sketch25.AttachmentSupport = (doc.getObject("XZ_Plane"), [""])
sketch25.MapMode = "FlatFace"
add_polygon(sketch25, [(-0.375, 13.075), (-0.375, 12.325), (0.375, 12.325), (0.375, 13.075)])
sketch25.addConstraint(Sketcher.Constraint("Vertical", 0))
sketch25.addConstraint(Sketcher.Constraint("Horizontal", 1))
sketch25.addConstraint(Sketcher.Constraint("Vertical", 2))
sketch25.addConstraint(Sketcher.Constraint("Horizontal", 3))
sketch25.addConstraint(Sketcher.Constraint("Equal", 3, 0))
sketch25.addConstraint(Sketcher.Constraint("DistanceX", 1, 1, 1, 2, 0.75))
sketch25.addConstraint(Sketcher.Constraint("DistanceX", 0, 2, -1, 1, 0.375))
sketch25.addConstraint(Sketcher.Constraint("DistanceY", -1, 1, 0, 2, 12.325))
pad11 = body.newObject("PartDesign::Pad", "Pad010")
pad11.Profile = sketch25
pad11.Length = 3.25

sketch26 = body.newObject("Sketcher::SketchObject", "Sketch025")
sketch26.AttachmentSupport = (doc.getObject("XZ_Plane"), [""])
sketch26.MapMode = "FlatFace"
add_polygon(sketch26, [(-0.375, 15.615), (-0.375, 14.865), (0.375, 14.865), (0.375, 15.615)])
sketch26.addConstraint(Sketcher.Constraint("Vertical", 0))
sketch26.addConstraint(Sketcher.Constraint("Horizontal", 1))
sketch26.addConstraint(Sketcher.Constraint("Vertical", 2))
sketch26.addConstraint(Sketcher.Constraint("Horizontal", 3))
sketch26.addConstraint(Sketcher.Constraint("Equal", 3, 0))
sketch26.addConstraint(Sketcher.Constraint("DistanceX", 1, 1, 1, 2, 0.75))
sketch26.addConstraint(Sketcher.Constraint("DistanceX", 0, 2, -1, 1, 0.375))
sketch26.addConstraint(Sketcher.Constraint("DistanceY", -1, 1, 0, 2, 14.865))
pad12 = body.newObject("PartDesign::Pad", "Pad011")
pad12.Profile = sketch26
pad12.Length = 3.25

sketch27 = body.newObject("Sketcher::SketchObject", "Sketch026")
sketch27.AttachmentSupport = (doc.getObject("XZ_Plane"), [""])
sketch27.MapMode = "FlatFace"
add_polygon(sketch27, [(-0.375, 18.155), (-0.375, 17.405), (0.375, 17.405), (0.375, 18.155)])
sketch27.addConstraint(Sketcher.Constraint("Vertical", 0))
sketch27.addConstraint(Sketcher.Constraint("Horizontal", 1))
sketch27.addConstraint(Sketcher.Constraint("Vertical", 2))
sketch27.addConstraint(Sketcher.Constraint("Horizontal", 3))
sketch27.addConstraint(Sketcher.Constraint("Equal", 3, 0))
sketch27.addConstraint(Sketcher.Constraint("DistanceX", 1, 1, 1, 2, 0.75))
sketch27.addConstraint(Sketcher.Constraint("DistanceX", 0, 2, -1, 1, 0.375))
sketch27.addConstraint(Sketcher.Constraint("DistanceY", -1, 1, 0, 2, 17.405))
pad13 = body.newObject("PartDesign::Pad", "Pad012")
pad13.Profile = sketch27
pad13.Length = 3.25

doc.recompute()
